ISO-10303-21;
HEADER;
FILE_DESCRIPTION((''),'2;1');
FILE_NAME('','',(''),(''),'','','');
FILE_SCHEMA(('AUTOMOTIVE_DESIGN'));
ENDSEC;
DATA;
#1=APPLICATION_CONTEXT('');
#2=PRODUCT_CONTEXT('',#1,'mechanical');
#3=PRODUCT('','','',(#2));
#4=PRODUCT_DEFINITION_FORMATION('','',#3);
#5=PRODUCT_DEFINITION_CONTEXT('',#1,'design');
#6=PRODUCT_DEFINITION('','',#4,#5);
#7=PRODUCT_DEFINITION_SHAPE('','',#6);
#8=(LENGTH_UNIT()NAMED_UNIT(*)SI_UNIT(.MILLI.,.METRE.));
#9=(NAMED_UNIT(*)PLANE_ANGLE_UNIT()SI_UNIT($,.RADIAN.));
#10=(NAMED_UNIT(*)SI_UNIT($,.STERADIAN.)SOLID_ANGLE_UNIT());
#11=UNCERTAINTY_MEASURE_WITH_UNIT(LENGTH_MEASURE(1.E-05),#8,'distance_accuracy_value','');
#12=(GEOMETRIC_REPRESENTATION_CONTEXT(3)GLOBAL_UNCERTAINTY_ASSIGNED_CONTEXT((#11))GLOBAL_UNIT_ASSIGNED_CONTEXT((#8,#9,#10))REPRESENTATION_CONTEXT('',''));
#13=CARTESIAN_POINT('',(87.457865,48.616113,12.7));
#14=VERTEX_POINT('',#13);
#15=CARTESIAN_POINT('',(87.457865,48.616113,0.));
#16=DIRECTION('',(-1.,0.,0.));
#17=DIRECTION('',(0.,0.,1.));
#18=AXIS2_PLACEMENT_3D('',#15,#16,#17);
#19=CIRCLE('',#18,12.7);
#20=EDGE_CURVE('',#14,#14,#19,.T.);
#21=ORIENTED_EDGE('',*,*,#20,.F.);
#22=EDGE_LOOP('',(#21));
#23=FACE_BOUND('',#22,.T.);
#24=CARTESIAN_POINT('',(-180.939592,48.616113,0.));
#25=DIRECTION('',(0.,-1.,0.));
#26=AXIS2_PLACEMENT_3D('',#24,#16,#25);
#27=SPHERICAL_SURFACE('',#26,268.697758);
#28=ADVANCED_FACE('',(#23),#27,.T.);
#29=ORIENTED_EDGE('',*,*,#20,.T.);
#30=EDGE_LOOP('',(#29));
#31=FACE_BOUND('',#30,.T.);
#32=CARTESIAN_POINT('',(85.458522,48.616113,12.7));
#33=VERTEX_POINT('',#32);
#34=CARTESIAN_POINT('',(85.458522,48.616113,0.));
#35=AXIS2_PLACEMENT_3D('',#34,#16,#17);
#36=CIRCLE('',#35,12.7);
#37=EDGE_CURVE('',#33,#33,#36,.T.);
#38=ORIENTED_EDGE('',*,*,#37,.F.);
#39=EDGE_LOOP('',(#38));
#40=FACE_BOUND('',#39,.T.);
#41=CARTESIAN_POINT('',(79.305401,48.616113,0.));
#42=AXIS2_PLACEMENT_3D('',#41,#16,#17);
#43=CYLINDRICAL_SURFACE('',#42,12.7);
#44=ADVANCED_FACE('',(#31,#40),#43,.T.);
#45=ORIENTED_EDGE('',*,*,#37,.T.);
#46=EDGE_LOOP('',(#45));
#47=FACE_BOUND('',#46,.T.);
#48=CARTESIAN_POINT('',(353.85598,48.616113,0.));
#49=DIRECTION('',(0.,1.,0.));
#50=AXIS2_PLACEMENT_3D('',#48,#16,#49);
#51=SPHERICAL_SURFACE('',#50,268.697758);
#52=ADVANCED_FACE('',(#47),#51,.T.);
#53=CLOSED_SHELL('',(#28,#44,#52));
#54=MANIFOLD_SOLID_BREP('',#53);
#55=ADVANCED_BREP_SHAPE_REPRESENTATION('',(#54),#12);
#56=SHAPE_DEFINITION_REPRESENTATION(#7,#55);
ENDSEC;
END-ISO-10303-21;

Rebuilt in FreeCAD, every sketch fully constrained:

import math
import FreeCAD as App
import Part
import Sketcher
from FreeCAD import Vector
Q = App.Units.Quantity

doc = App.newDocument("Part")
body = doc.addObject("PartDesign::Body", "Body")

sketch1 = body.newObject("Sketcher::SketchObject", "Sketch")
sketch1.AttachmentSupport = (doc.getObject("XY_Plane"), [""])
sketch1.MapMode = "FlatFace"
sketch1.addGeometry(Part.LineSegment(Vector(87.457865, 61.316113, 0), Vector(85.458522, 61.316113, 0)), False)
sketch1.addGeometry(Part.ArcOfCircle(Part.Circle(Vector(353.855981, 48.616113, 0), Vector(0, 0, 1), 268.697759), math.radians(177.290906), math.radians(180)), False)
sketch1.addGeometry(Part.LineSegment(Vector(85.158222, 48.616113, 0), Vector(87.758166, 48.616113, 0)), False)
sketch1.addGeometry(Part.ArcOfCircle(Part.Circle(Vector(-180.939591, 48.616113, 0), Vector(0, 0, 1), 268.697757), math.radians(0), math.radians(2.709094)), False)
sketch1.addGeometry(Part.LineSegment(Vector(-180.939591, 48.616113, 0), Vector(353.855981, 48.616113, 0)), True)
sketch1.addConstraint(Sketcher.Constraint("Coincident", 0, 2, 1, 1))
sketch1.addConstraint(Sketcher.Constraint("Coincident", 1, 2, 2, 1))
sketch1.addConstraint(Sketcher.Constraint("Coincident", 2, 2, 3, 1))
sketch1.addConstraint(Sketcher.Constraint("Coincident", 3, 2, 0, 1))
sketch1.addConstraint(Sketcher.Constraint("Horizontal", 0))
sketch1.addConstraint(Sketcher.Constraint("Horizontal", 2))
sketch1.addConstraint(Sketcher.Constraint("Horizontal", 4))
sketch1.addConstraint(Sketcher.Constraint("Coincident", 4, 1, 3, 3))
sketch1.addConstraint(Sketcher.Constraint("Coincident", 4, 2, 1, 3))
sketch1.addConstraint(Sketcher.Constraint("Equal", 1, 3))
sketch1.addConstraint(Sketcher.Constraint("Horizontal", 3, 3, 1, 2))
sketch1.addConstraint(Sketcher.Constraint("DistanceY", 3, 3, 0, 2, Q("12.7 mm")))
sketch1.addConstraint(Sketcher.Constraint("Radius", 1, Q("268.697759 mm")))
sketch1.addConstraint(Sketcher.Constraint("DistanceX", 4, 1, 4, 2, Q("534.795572 mm")))
sketch1.addConstraint(Sketcher.Constraint("DistanceX", -1, 1, 1, 3, Q("353.855981 mm")))
sketch1.addConstraint(Sketcher.Constraint("DistanceY", -1, 1, 1, 3, Q("48.616113 mm")))
revolution = body.newObject("PartDesign::Revolution", "Revolution")
revolution.Profile = sketch1
revolution.ReferenceAxis = (sketch1, ["Axis0"])
revolution.Angle = 360

doc.recompute()
